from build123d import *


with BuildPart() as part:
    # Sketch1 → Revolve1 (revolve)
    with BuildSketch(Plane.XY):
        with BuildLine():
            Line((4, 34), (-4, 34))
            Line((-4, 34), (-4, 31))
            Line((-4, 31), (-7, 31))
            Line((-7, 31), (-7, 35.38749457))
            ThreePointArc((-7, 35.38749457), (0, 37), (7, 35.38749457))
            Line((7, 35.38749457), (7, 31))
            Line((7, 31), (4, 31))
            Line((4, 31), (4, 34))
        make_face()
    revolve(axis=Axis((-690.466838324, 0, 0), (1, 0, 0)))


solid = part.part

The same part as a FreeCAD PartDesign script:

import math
import FreeCAD as App
import Part
import Sketcher
Q = App.Units.Quantity

doc = App.newDocument("Part")
body = doc.addObject("PartDesign::Body", "Body")

# Sketch on XY plane
sketch1 = body.newObject("Sketcher::SketchObject", "Sketch")
sketch1.AttachmentSupport = (doc.getObject("XY_Plane"), [""])
sketch1.MapMode = "FlatFace"
sketch1.addGeometry([
    Part.LineSegment(App.Vector(-4, 34, 0), App.Vector(4, 34, 0)),  # 0
    Part.LineSegment(App.Vector(4, 34, 0), App.Vector(4, 31, 0)),  # 1
    Part.LineSegment(App.Vector(4, 31, 0), App.Vector(7, 31, 0)),  # 2
    Part.LineSegment(App.Vector(7, 31, 0), App.Vector(7, 35.4, 0)),  # 3
    Part.ArcOfCircle(Part.Circle(App.Vector(0, 21, 0), App.Vector(0, 0, 1), 16), math.radians(64), math.radians(116)),  # 4
    Part.LineSegment(App.Vector(-7, 35.4, 0), App.Vector(-7, 31, 0)),  # 5
    Part.LineSegment(App.Vector(-7, 31, 0), App.Vector(-4, 31, 0)),  # 6
    Part.LineSegment(App.Vector(-4, 31, 0), App.Vector(-4, 34, 0)),  # 7
], False)
sketch1.addConstraint([
    Sketcher.Constraint("Coincident", 0, 2, 1, 1),
    Sketcher.Constraint("Coincident", 1, 2, 2, 1),
    Sketcher.Constraint("Coincident", 2, 2, 3, 1),
    Sketcher.Constraint("Coincident", 3, 2, 4, 1),
    Sketcher.Constraint("Coincident", 4, 2, 5, 1),
    Sketcher.Constraint("Coincident", 5, 2, 6, 1),
    Sketcher.Constraint("Coincident", 6, 2, 7, 1),
    Sketcher.Constraint("Coincident", 7, 2, 0, 1),
    Sketcher.Constraint("Horizontal", 0),
    Sketcher.Constraint("Vertical", 1),
    Sketcher.Constraint("Horizontal", 2),
    Sketcher.Constraint("Vertical", 3),
    Sketcher.Constraint("Vertical", 5),
    Sketcher.Constraint("Horizontal", 6),
    Sketcher.Constraint("Vertical", 7),
    Sketcher.Constraint("Symmetric", 3, 2, 4, 2, -2),
    Sketcher.Constraint("Symmetric", 1, 2, 6, 2, -2),
    Sketcher.Constraint("Equal", 6, 1),
    Sketcher.Constraint("Radius", 4, Q("16 mm")),
    Sketcher.Constraint("DistanceX", 0, 1, 0, 2, Q("8 mm")),
    Sketcher.Constraint("DistanceX", 2, 1, 2, 2, Q("3 mm")),
    Sketcher.Constraint("DistanceY", -1, 1, 4, 3, Q("21 mm")),
    Sketcher.Constraint("DistanceY", -1, 1, 0, 2, Q("34 mm")),
])
revolution = body.newObject("PartDesign::Revolution", "Revolution")
revolution.Profile = sketch1
revolution.ReferenceAxis = (sketch1, ["H_Axis"])
revolution.Angle = 360

doc.recompute()
